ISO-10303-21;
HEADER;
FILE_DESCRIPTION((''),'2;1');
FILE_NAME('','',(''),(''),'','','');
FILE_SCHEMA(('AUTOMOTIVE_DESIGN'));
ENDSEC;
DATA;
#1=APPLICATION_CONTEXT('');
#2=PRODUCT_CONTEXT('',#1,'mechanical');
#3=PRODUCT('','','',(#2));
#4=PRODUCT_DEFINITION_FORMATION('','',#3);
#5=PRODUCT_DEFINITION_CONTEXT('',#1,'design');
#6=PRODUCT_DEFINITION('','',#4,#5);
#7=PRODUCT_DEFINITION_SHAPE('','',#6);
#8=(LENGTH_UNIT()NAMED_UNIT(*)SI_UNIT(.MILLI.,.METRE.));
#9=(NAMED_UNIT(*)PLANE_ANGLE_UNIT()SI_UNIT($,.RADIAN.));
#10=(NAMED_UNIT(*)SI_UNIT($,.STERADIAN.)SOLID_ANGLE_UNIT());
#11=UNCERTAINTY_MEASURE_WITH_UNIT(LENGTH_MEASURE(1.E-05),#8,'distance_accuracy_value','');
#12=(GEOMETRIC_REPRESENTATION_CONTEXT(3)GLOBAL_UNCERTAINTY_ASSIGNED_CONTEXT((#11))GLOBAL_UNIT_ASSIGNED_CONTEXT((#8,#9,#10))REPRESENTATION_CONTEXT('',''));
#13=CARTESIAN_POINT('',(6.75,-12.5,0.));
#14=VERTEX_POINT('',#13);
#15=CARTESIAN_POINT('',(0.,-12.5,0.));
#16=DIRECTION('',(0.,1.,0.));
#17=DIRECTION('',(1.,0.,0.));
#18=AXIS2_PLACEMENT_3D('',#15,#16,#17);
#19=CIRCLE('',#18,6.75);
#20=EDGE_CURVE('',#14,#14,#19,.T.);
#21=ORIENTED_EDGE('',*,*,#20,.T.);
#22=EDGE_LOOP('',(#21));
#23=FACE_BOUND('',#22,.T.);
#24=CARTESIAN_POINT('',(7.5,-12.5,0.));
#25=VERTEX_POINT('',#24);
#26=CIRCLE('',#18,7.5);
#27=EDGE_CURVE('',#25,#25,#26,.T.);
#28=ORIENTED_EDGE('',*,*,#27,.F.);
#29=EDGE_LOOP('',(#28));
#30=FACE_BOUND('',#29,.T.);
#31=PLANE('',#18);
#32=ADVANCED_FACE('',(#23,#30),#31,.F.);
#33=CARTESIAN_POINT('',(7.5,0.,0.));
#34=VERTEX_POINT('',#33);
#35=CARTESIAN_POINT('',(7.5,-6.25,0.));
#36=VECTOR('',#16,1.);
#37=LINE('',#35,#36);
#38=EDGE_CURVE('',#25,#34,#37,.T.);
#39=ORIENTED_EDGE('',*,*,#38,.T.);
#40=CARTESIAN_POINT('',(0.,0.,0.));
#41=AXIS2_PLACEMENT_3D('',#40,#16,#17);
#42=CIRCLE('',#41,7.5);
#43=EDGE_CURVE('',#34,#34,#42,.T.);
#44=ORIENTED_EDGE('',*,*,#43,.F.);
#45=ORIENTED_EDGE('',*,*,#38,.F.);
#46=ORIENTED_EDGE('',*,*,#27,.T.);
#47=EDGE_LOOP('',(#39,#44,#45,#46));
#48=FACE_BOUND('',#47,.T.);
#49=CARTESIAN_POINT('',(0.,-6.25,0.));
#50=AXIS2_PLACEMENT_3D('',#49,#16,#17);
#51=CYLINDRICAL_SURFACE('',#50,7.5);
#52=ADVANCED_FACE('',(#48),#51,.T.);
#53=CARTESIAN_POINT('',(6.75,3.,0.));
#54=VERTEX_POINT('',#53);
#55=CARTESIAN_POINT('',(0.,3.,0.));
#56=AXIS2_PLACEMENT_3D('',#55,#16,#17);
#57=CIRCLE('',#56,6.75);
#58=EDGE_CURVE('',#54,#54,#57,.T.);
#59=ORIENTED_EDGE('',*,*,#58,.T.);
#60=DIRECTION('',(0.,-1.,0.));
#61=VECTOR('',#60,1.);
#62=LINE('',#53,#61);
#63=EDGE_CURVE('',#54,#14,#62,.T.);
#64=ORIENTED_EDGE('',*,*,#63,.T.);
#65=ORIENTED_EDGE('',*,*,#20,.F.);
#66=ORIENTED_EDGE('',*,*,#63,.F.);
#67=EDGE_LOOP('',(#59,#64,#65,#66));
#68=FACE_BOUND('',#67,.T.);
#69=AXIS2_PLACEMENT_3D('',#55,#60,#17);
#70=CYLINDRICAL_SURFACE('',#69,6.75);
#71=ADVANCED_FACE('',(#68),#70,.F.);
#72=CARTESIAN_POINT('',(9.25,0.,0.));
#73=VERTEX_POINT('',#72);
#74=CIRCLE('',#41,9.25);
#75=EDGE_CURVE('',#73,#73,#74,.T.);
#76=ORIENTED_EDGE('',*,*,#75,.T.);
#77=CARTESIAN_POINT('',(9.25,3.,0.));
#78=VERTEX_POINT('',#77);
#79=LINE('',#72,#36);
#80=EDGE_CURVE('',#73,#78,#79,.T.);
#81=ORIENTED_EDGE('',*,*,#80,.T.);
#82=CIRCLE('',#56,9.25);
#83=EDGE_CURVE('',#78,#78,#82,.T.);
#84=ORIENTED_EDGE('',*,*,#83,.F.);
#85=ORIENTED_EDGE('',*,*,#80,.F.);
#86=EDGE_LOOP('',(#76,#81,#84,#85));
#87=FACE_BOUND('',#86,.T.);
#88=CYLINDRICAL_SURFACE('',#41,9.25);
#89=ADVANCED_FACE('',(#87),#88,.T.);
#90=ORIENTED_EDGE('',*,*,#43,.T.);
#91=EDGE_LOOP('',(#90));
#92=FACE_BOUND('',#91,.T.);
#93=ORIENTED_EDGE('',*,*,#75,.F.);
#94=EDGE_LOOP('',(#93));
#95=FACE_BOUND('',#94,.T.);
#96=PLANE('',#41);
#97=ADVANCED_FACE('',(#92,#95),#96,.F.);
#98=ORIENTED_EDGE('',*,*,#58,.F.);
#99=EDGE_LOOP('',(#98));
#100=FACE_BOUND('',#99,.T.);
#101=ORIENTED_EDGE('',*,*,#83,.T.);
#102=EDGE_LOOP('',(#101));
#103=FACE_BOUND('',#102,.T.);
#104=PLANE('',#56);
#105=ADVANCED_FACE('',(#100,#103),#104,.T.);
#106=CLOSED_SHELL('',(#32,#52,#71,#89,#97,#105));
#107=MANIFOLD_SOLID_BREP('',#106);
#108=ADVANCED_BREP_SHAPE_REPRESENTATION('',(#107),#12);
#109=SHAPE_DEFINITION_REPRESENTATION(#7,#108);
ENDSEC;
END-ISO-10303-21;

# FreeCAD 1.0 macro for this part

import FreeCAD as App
import Part
import Sketcher

V = App.Vector
Q = App.Units.Quantity


def add_polygon(sketch, points):
    """Adds a closed chain of lines whose ends are joined by coincident constraints."""
    first, n = sketch.GeometryCount, len(points)
    for a, b in zip(points, points[1:] + points[:1]):
        sketch.addGeometry(Part.LineSegment(App.Vector(*a, 0), App.Vector(*b, 0)), False)
    for i in range(n):
        sketch.addConstraint(Sketcher.Constraint("Coincident", first + i, 2, first + (i + 1) % n, 1))

doc = App.newDocument("Part")
params = doc.addObject("Spreadsheet::Sheet", "Params")
for row, (alias, value) in enumerate([
    ("sketch1_height", "3 mm"),
    ("sketch1_width", "2.5 mm"),
    ("sketch1_height2", "15.5 mm"),
    ("sketch1_width2", "0.75 mm"),
    ("revolution_angle", "360 deg"),
], start=1):
    params.set(f"A{row}", alias)
    params.set(f"B{row}", "=" + value)
    params.setAlias(f"B{row}", alias)

body = doc.addObject("PartDesign::Body", "Body")

# Sketch on XY plane
sketch1 = body.newObject("Sketcher::SketchObject", "Sketch")
sketch1.AttachmentSupport = (doc.getObject("XY_Plane"), [""])
sketch1.MapMode = "FlatFace"
add_polygon(sketch1, [(6.8, 3), (6.8, -12.5), (7.5, -12.5), (7.5, 0), (9.2, 0), (9.2, 3)])  # lines 0-5
sketch1.addConstraint([
    Sketcher.Constraint("Vertical", 0),
    Sketcher.Constraint("Horizontal", 1),
    Sketcher.Constraint("Vertical", 2),
    Sketcher.Constraint("Horizontal", 3),
    Sketcher.Constraint("Vertical", 4),
    Sketcher.Constraint("Horizontal", 5),
    Sketcher.Constraint("PointOnObject", 2, 2, -1),
    Sketcher.Constraint("DistanceY", 4, 1, 4, 2, Q("3 mm")),
    Sketcher.Constraint("DistanceX", 5, 2, 5, 1, Q("2.5 mm")),
    Sketcher.Constraint("DistanceY", 0, 2, 0, 1, Q("15.5 mm")),
    Sketcher.Constraint("DistanceX", 1, 1, 1, 2, Q("0.75 mm")),
    Sketcher.Constraint("DistanceX", -1, 1, 1, 2, Q("7.5 mm")),
])
sketch1.setExpression("Constraints[13]", "Params.sketch1_height")
sketch1.setExpression("Constraints[14]", "Params.sketch1_width")
sketch1.setExpression("Constraints[15]", "Params.sketch1_height2")
sketch1.setExpression("Constraints[16]", "Params.sketch1_width2")
revolution = body.newObject("PartDesign::Revolution", "Revolution")
revolution.Profile = sketch1
revolution.ReferenceAxis = (sketch1, ["V_Axis"])
revolution.setExpression("Angle", "Params.revolution_angle")

doc.recompute()
